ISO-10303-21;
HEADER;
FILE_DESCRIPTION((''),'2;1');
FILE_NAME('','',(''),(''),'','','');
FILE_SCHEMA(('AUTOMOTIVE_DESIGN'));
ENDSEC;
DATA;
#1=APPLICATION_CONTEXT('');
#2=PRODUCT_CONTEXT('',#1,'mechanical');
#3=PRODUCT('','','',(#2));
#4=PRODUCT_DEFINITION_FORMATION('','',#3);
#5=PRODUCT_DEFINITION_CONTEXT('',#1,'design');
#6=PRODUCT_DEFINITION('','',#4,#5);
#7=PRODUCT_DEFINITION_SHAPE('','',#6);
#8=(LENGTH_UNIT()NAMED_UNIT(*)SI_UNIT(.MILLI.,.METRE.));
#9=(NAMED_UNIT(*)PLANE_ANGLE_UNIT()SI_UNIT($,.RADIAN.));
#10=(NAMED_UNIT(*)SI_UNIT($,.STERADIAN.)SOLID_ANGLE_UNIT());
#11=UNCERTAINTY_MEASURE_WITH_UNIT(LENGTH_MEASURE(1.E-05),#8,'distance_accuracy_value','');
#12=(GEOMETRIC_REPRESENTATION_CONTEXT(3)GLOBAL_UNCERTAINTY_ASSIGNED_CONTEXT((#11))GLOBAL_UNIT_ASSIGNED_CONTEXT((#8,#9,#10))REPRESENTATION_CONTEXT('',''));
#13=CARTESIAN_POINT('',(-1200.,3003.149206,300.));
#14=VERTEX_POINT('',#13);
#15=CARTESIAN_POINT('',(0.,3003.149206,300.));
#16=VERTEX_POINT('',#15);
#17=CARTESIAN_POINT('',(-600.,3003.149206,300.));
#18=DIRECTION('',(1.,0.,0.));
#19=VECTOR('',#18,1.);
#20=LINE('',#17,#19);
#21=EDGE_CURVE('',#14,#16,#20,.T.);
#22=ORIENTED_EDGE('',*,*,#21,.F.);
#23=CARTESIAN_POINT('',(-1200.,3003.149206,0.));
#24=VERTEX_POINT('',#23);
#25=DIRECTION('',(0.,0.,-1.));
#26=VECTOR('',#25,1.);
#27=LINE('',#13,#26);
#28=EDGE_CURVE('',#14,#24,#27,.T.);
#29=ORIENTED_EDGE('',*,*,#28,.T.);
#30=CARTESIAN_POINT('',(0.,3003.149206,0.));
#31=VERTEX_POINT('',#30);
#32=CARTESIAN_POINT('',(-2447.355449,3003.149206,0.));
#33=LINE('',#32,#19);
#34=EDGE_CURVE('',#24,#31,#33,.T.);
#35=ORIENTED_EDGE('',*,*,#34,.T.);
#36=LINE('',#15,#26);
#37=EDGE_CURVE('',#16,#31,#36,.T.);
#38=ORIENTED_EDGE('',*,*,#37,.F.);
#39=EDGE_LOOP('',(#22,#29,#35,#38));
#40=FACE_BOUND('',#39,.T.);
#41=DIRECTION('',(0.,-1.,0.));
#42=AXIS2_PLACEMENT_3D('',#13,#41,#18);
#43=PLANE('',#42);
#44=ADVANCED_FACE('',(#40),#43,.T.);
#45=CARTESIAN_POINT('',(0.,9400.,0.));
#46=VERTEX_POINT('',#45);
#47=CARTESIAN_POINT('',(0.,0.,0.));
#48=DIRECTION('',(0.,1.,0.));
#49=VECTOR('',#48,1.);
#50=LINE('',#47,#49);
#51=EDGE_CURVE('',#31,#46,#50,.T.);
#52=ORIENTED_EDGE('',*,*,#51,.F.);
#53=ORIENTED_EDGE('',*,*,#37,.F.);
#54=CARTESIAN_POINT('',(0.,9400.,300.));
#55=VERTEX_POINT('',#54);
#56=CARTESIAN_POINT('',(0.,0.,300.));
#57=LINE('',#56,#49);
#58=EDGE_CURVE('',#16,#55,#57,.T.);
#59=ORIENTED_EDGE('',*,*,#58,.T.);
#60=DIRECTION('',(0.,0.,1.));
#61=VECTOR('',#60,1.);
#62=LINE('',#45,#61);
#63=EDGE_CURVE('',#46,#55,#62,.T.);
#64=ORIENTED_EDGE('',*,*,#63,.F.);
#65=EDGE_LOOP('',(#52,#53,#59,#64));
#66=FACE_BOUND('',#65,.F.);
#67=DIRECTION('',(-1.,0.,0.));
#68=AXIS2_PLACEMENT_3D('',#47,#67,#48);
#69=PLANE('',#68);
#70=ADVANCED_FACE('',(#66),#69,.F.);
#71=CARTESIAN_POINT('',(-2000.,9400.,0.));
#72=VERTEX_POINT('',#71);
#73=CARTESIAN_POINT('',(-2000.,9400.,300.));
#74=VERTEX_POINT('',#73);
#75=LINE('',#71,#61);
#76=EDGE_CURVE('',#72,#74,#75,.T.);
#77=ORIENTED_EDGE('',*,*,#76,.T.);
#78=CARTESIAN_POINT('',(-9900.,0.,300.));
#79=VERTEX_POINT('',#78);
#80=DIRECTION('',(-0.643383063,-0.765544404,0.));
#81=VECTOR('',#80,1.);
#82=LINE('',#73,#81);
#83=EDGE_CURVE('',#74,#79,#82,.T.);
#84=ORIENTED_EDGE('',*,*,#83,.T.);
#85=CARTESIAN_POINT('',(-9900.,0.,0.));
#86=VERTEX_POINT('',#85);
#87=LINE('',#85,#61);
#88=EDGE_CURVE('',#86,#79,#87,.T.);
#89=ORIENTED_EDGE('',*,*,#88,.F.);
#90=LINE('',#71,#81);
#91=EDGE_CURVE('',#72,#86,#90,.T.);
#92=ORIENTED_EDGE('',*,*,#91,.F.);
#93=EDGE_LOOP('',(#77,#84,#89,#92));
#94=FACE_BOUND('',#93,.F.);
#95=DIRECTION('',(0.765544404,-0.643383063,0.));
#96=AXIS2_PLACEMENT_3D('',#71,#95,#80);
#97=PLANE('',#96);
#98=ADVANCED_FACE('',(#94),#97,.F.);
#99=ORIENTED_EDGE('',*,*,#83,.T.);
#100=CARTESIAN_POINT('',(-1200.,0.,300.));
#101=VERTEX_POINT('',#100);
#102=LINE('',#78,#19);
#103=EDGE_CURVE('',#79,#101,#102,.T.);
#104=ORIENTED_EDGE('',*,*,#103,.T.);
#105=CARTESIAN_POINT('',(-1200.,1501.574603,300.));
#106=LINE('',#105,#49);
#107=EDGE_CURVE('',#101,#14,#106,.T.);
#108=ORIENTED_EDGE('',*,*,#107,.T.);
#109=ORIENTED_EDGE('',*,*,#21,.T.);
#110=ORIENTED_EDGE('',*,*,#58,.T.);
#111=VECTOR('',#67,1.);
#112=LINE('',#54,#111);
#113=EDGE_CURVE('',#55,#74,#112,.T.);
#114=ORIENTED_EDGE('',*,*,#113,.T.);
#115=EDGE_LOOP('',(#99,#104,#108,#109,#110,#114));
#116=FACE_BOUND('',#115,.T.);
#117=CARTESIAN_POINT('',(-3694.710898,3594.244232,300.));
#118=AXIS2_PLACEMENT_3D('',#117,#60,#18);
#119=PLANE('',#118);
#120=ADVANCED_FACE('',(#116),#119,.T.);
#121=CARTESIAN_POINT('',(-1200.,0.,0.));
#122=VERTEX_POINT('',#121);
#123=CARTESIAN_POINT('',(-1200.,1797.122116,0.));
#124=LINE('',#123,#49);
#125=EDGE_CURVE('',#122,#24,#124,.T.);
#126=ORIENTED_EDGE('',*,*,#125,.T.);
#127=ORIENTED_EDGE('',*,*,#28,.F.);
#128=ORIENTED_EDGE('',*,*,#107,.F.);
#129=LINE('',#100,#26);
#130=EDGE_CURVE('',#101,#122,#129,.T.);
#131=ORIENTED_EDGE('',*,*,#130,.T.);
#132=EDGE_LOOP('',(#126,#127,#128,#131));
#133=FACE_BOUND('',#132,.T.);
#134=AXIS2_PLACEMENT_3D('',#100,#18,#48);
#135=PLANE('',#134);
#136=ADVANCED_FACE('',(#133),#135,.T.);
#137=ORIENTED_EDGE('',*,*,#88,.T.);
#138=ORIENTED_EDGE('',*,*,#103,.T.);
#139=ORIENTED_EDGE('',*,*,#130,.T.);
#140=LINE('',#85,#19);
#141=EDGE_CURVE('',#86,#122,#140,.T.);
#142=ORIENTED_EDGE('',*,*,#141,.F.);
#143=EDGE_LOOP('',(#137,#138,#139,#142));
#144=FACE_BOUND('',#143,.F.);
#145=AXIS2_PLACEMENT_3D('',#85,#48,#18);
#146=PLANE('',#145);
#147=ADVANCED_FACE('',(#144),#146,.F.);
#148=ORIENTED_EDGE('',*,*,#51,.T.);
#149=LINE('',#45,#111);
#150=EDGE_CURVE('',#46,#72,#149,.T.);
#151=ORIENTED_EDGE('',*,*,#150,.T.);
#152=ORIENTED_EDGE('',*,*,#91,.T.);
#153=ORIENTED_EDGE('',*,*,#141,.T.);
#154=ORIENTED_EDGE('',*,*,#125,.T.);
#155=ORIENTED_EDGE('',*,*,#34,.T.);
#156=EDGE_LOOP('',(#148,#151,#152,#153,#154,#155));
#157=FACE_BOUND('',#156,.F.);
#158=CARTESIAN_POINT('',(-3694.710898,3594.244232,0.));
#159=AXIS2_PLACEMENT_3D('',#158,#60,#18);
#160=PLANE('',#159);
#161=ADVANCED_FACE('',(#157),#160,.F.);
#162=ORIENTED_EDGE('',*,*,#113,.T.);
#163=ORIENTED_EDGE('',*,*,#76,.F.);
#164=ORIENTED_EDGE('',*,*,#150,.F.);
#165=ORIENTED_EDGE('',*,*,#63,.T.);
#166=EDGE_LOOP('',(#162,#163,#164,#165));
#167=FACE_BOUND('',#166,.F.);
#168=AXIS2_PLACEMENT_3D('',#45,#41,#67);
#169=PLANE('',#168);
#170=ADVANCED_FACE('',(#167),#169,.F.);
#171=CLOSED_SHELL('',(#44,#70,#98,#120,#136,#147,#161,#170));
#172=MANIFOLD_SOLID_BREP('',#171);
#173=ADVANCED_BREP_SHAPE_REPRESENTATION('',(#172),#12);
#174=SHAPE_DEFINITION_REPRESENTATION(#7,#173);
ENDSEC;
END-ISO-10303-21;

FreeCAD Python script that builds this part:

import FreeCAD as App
import Part
import Sketcher

doc = App.newDocument("Part")
body = doc.addObject("PartDesign::Body", "Body")

# Sketch on XY plane
sketch1 = body.newObject("Sketcher::SketchObject", "Sketch")
sketch1.AttachmentSupport = (doc.getObject("XY_Plane"), [""])
sketch1.MapMode = "FlatFace"
sketch1.addGeometry(Part.LineSegment(App.Vector(-9900, 0, 0), App.Vector(0, 0, 0)), False)
sketch1.addGeometry(Part.LineSegment(App.Vector(0, 0, 0), App.Vector(0, 9400, 0)), False)
sketch1.addGeometry(Part.LineSegment(App.Vector(0, 9400, 0), App.Vector(-2000, 9400, 0)), False)
sketch1.addGeometry(Part.LineSegment(App.Vector(-2000, 9400, 0), App.Vector(-9900, 0, 0)), False)
sketch1.addConstraint(Sketcher.Constraint("Coincident", 0, 2, 1, 1))
sketch1.addConstraint(Sketcher.Constraint("Coincident", 1, 2, 2, 1))
sketch1.addConstraint(Sketcher.Constraint("Coincident", 2, 2, 3, 1))
sketch1.addConstraint(Sketcher.Constraint("Coincident", 3, 2, 0, 1))
sketch1.addConstraint(Sketcher.Constraint("Horizontal", 0))
sketch1.addConstraint(Sketcher.Constraint("Vertical", 1))
sketch1.addConstraint(Sketcher.Constraint("Horizontal", 2))
sketch1.addConstraint(Sketcher.Constraint("Coincident", 0, 2, -1, 1))
sketch1.addConstraint(Sketcher.Constraint("DistanceX", 0, 1, 0, 2, 9900.0))
sketch1.addConstraint(Sketcher.Constraint("DistanceX", 2, 2, 2, 1, 2000.0))
sketch1.addConstraint(Sketcher.Constraint("DistanceY", 1, 1, 1, 2, 9400.0))
pad1 = body.newObject("PartDesign::Pad", "Pad")
pad1.Profile = sketch1
pad1.Length = 300

# Sketch on XY plane
sketch2 = body.newObject("Sketcher::SketchObject", "Sketch001")
sketch2.AttachmentSupport = (doc.getObject("XY_Plane"), [""])
sketch2.MapMode = "FlatFace"
sketch2.AttachmentOffset = App.Placement(App.Vector(0, 0, 300), App.Rotation())
sketch2.addGeometry(Part.LineSegment(App.Vector(-1200, 3003, 0), App.Vector(-1200, 0, 0)), False)
sketch2.addGeometry(Part.LineSegment(App.Vector(-1200, 0, 0), App.Vector(0, 0, 0)), False)
sketch2.addGeometry(Part.LineSegment(App.Vector(0, 0, 0), App.Vector(0, 3003, 0)), False)
sketch2.addGeometry(Part.LineSegment(App.Vector(0, 3003, 0), App.Vector(-1200, 3003, 0)), False)
sketch2.addConstraint(Sketcher.Constraint("Coincident", 0, 2, 1, 1))
sketch2.addConstraint(Sketcher.Constraint("Coincident", 1, 2, 2, 1))
sketch2.addConstraint(Sketcher.Constraint("Coincident", 2, 2, 3, 1))
sketch2.addConstraint(Sketcher.Constraint("Coincident", 3, 2, 0, 1))
sketch2.addConstraint(Sketcher.Constraint("Vertical", 0))
sketch2.addConstraint(Sketcher.Constraint("Horizontal", 1))
sketch2.addConstraint(Sketcher.Constraint("Vertical", 2))
sketch2.addConstraint(Sketcher.Constraint("Horizontal", 3))
sketch2.addConstraint(Sketcher.Constraint("Coincident", 1, 2, -1, 1))
sketch2.addConstraint(Sketcher.Constraint("DistanceX", 1, 1, 1, 2, 1200.0))
sketch2.addConstraint(Sketcher.Constraint("DistanceY", 0, 2, 0, 1, 3003.149206))
pocket1 = body.newObject("PartDesign::Pocket", "Pocket")
pocket1.Profile = sketch2
pocket1.Type = "ThroughAll"

doc.recompute()
